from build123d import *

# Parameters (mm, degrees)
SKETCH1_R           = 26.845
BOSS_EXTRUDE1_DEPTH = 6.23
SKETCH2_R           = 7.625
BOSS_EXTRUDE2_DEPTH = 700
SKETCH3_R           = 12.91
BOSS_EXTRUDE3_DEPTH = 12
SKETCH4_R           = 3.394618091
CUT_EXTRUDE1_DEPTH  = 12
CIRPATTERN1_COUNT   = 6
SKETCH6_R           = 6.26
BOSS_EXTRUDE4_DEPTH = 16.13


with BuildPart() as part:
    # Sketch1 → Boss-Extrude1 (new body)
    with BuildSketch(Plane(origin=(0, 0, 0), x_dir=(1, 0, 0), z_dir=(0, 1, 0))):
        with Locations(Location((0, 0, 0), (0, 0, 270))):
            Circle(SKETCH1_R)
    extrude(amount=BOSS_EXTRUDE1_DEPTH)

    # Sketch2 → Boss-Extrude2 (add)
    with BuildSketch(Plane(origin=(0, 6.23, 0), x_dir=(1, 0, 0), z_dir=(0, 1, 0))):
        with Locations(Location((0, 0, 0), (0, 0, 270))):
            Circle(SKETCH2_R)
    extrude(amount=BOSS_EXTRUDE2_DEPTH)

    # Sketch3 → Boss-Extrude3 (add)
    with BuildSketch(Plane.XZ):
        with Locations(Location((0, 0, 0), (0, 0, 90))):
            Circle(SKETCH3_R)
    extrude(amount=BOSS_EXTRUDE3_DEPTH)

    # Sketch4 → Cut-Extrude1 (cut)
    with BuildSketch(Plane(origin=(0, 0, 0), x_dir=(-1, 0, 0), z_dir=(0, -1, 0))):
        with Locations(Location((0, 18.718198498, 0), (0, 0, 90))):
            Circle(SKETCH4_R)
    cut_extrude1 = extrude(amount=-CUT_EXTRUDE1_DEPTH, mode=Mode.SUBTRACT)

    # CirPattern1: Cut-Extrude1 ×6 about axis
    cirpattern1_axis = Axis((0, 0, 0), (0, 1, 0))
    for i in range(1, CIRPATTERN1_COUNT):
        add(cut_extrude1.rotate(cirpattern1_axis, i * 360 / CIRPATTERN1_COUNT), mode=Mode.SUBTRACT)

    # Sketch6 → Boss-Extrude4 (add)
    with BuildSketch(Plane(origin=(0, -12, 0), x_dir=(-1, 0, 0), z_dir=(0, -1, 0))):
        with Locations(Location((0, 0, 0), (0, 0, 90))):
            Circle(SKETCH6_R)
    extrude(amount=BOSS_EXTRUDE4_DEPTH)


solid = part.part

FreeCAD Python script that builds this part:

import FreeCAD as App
import Part
import Sketcher

V = App.Vector

doc = App.newDocument("Part")
body = doc.addObject("PartDesign::Body", "Body")

sketch1 = body.newObject("Sketcher::SketchObject", "Sketch")
sketch1.AttachmentSupport = (doc.getObject("XZ_Plane"), [""])
sketch1.MapMode = "FlatFace"
sketch1.addGeometry(Part.Circle(V(0, 0, 0), V(0, 0, 1), 27), False)
sketch1.addConstraint([
    Sketcher.Constraint("Coincident", 0, 3, -1, 1),
    Sketcher.Constraint("Diameter", 0, 53.69),
])
pad1 = body.newObject("PartDesign::Pad", "Pad")
pad1.Profile = sketch1
pad1.Length = 6.23
pad1.Reversed = True

sketch2 = body.newObject("Sketcher::SketchObject", "Sketch001")
sketch2.AttachmentSupport = (doc.getObject("XZ_Plane"), [""])
sketch2.MapMode = "FlatFace"
sketch2.AttachmentOffset = App.Placement(V(0, 0, -6.23), App.Rotation())
sketch2.addGeometry(Part.Circle(V(0, 0, 0), V(0, 0, 1), 8), False)
sketch2.addConstraint([
    Sketcher.Constraint("Coincident", 0, 3, -1, 1),
    Sketcher.Constraint("Diameter", 0, 15.25),
])
pad2 = body.newObject("PartDesign::Pad", "Pad001")
pad2.Profile = sketch2
pad2.Length = 700
pad2.Reversed = True

sketch3 = body.newObject("Sketcher::SketchObject", "Sketch002")
sketch3.AttachmentSupport = (doc.getObject("XZ_Plane"), [""])
sketch3.MapMode = "FlatFace"
sketch3.addGeometry(Part.Circle(V(0, 0, 0), V(0, 0, 1), 13), False)
sketch3.addConstraint([
    Sketcher.Constraint("Coincident", 0, 3, -1, 1),
    Sketcher.Constraint("Diameter", 0, 25.82),
])
pad3 = body.newObject("PartDesign::Pad", "Pad002")
pad3.Profile = sketch3
pad3.Length = 12

sketch4 = body.newObject("Sketcher::SketchObject", "Sketch003")
sketch4.AttachmentSupport = (doc.getObject("XZ_Plane"), [""])
sketch4.MapMode = "FlatFace"
sketch4.addGeometry(Part.Circle(V(0, -18.7, 0), V(0, 0, 1), 3.4), False)
sketch4.addConstraint([
    Sketcher.Constraint("PointOnObject", 0, 3, -2),
    Sketcher.Constraint("Diameter", 0, 6.789236),
    Sketcher.Constraint("DistanceY", 0, 3, -1, 1, 18.718198),
])
pocket1 = body.newObject("PartDesign::Pocket", "Pocket")
pocket1.Profile = sketch4
pocket1.Length = 12
doc.recompute()

polarpattern = body.newObject("PartDesign::PolarPattern", "PolarPattern")
polarpattern.Originals = [pocket1]
polarpattern.Axis = (doc.getObject("Y_Axis"), [""])
polarpattern.Angle = 360
polarpattern.Occurrences = 6
body.Tip = polarpattern

sketch5 = body.newObject("Sketcher::SketchObject", "Sketch004")
sketch5.AttachmentSupport = (doc.getObject("XZ_Plane"), [""])
sketch5.MapMode = "FlatFace"
sketch5.AttachmentOffset = App.Placement(V(0, 0, 12), App.Rotation())
sketch5.addGeometry(Part.Circle(V(0, 0, 0), V(0, 0, 1), 6), False)
sketch5.addConstraint([
    Sketcher.Constraint("Coincident", 0, 3, -1, 1),
    Sketcher.Constraint("Diameter", 0, 12.52),
])
pad4 = body.newObject("PartDesign::Pad", "Pad003")
pad4.Profile = sketch5
pad4.Length = 16.13

doc.recompute()
